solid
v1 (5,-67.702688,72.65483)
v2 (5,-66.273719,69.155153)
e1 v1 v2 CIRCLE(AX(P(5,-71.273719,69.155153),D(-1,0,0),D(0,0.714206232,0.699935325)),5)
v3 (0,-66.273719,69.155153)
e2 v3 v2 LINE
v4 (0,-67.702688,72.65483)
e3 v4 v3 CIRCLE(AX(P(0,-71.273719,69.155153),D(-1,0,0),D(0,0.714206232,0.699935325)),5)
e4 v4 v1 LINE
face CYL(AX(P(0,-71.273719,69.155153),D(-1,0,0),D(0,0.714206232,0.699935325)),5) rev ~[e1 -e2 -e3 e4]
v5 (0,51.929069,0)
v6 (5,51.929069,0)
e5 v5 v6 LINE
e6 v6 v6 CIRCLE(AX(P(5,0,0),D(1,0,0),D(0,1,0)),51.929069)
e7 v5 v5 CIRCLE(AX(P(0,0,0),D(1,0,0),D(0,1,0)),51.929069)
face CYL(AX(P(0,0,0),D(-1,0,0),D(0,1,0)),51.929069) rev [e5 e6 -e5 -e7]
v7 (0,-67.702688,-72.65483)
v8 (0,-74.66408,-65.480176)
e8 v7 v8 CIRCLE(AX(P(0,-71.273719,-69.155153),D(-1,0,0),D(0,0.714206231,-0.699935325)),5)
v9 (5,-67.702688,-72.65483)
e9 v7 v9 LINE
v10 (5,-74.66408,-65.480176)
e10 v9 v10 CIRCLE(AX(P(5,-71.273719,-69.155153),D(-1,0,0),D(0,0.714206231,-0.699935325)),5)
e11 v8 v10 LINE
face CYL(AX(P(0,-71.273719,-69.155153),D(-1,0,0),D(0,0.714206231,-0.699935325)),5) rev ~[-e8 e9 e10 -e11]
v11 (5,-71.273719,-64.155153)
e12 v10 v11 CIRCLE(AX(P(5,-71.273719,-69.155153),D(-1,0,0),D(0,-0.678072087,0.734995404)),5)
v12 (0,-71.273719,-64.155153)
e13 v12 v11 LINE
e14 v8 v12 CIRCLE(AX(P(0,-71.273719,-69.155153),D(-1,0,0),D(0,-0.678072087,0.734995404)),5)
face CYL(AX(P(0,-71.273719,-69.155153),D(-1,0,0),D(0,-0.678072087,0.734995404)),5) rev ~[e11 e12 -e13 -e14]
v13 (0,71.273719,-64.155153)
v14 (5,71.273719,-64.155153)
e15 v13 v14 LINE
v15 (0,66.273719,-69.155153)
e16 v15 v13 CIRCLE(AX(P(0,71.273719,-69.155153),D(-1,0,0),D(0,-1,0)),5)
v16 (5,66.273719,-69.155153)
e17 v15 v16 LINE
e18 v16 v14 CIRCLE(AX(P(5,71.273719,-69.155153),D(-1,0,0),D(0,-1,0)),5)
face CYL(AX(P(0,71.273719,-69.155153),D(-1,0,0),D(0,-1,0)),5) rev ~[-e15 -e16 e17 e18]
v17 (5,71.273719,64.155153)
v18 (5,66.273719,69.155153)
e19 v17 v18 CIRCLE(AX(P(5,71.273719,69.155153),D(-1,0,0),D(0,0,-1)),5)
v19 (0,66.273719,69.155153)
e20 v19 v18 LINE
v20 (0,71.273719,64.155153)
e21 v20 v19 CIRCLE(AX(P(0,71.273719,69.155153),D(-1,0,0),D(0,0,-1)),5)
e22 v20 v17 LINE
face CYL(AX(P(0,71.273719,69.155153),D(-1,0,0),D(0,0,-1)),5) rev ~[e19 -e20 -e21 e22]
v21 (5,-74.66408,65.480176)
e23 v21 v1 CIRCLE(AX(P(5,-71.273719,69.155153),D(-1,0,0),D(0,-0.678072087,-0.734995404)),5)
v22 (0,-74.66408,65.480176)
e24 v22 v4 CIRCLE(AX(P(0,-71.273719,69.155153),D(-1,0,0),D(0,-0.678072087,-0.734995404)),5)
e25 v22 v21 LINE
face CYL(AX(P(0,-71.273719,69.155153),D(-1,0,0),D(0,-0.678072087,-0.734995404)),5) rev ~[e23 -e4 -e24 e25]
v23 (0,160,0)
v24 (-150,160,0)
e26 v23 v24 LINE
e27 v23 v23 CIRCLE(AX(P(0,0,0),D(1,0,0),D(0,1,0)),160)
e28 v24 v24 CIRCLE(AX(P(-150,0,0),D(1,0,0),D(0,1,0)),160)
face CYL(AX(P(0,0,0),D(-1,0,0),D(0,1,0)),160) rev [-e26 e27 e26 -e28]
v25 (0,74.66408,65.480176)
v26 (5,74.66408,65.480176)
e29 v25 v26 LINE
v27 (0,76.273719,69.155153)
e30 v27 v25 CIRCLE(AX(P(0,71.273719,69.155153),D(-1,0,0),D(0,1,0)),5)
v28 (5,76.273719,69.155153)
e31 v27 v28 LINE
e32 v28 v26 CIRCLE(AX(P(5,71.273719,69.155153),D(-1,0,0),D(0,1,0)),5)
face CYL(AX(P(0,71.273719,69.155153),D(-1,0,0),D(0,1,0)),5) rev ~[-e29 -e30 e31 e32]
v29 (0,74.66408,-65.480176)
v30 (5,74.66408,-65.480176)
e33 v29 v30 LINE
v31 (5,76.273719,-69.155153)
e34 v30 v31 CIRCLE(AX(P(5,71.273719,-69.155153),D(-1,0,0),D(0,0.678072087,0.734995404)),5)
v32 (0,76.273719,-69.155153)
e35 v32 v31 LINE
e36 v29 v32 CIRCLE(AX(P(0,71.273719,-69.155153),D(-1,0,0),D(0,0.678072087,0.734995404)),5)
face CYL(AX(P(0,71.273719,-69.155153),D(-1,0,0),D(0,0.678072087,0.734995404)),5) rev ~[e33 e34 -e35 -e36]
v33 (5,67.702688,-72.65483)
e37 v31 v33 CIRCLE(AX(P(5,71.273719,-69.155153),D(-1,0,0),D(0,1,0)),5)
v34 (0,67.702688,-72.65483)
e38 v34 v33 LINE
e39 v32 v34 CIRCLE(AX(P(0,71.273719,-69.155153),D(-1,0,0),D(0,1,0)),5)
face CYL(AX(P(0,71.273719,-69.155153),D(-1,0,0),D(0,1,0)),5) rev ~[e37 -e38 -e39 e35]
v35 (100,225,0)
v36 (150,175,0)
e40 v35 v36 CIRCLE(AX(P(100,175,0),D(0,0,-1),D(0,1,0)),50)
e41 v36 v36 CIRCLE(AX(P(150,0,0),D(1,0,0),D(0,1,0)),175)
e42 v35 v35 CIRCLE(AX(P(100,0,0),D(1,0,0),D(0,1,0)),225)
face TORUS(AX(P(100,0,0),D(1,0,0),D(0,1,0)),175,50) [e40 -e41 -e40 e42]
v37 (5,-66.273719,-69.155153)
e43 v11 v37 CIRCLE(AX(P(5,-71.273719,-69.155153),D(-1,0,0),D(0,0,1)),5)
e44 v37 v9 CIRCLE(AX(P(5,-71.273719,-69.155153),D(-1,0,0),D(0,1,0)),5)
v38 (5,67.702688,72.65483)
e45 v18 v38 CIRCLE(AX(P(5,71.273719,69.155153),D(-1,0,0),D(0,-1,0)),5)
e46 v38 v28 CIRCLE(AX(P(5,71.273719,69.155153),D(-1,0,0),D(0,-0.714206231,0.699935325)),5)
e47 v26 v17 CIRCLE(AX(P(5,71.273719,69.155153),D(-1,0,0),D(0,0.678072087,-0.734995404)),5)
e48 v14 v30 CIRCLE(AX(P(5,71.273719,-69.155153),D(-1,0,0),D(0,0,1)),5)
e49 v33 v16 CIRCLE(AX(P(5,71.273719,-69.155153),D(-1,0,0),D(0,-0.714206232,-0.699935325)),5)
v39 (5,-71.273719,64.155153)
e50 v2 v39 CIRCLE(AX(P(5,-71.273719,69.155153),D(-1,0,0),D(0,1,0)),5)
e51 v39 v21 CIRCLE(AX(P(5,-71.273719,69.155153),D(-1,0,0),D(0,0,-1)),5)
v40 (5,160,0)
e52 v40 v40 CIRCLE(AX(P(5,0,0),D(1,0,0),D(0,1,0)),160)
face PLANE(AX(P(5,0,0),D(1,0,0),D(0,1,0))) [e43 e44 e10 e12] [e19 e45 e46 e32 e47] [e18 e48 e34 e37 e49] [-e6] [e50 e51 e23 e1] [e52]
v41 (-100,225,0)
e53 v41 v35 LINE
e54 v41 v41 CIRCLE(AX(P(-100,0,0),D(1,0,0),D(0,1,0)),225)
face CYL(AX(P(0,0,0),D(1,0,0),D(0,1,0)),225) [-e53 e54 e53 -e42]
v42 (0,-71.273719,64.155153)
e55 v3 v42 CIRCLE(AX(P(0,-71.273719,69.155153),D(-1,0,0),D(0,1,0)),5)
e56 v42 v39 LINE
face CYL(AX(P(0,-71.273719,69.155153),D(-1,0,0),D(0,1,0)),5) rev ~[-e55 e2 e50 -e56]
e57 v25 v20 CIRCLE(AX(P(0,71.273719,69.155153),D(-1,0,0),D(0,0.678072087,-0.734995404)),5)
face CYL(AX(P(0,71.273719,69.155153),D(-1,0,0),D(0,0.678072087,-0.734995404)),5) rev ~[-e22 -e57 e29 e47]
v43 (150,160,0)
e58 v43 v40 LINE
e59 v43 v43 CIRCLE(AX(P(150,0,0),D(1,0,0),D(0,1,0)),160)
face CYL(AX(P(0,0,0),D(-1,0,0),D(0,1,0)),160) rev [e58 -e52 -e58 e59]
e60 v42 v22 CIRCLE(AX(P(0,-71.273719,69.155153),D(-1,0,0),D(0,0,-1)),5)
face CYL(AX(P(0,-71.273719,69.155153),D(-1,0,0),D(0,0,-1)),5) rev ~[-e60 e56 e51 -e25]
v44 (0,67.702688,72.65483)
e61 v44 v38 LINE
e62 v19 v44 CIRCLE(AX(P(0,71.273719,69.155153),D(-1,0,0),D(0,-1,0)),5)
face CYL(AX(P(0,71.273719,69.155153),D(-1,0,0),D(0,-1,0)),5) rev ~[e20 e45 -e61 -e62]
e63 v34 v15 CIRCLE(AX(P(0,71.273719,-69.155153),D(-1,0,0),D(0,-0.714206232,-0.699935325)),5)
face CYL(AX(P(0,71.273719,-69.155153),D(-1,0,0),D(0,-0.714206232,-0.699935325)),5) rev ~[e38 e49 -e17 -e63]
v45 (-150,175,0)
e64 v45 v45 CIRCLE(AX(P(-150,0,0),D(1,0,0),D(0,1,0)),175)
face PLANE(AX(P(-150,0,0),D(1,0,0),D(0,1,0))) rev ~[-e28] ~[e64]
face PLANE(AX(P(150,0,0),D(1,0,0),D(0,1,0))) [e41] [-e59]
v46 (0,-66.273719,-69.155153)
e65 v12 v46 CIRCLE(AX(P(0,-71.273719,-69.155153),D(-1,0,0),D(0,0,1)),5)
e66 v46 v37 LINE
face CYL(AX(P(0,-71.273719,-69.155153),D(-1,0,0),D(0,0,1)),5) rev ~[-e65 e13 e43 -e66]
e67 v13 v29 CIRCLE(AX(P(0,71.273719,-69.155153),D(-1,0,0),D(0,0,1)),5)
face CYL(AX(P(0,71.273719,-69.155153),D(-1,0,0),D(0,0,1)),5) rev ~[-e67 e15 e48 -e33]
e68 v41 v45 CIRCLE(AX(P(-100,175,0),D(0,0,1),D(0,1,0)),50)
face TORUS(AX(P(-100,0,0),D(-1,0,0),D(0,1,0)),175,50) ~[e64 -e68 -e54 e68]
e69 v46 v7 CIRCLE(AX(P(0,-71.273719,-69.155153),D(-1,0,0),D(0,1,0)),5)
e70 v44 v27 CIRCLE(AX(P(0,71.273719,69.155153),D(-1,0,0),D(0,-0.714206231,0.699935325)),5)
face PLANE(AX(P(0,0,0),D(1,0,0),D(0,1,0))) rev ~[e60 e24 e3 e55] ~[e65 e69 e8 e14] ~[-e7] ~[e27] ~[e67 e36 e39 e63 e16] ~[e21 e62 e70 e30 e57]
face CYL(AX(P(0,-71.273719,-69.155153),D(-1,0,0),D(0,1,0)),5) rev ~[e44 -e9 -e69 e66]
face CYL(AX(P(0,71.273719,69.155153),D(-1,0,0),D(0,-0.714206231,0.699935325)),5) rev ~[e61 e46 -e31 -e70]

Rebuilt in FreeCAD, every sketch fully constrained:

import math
import FreeCAD as App
import Part
import Sketcher
from FreeCAD import Vector
Q = App.Units.Quantity


def edges_at(feature, points):
    """Names of the edges that pass closest to the given points."""
    edges = feature.Shape.Edges
    near = lambda p: min(range(len(edges)), key=lambda i: edges[i].distToShape(Part.Vertex(*p))[0])
    return sorted({f"Edge{near(p) + 1}" for p in points})

doc = App.newDocument("Part")
body = doc.addObject("PartDesign::Body", "Body")

sketch1 = doc.addObject("Sketcher::SketchObject", "Sketch")
body.addObject(sketch1)
sketch1.AttachmentSupport = (doc.YZ_Plane, [""])
sketch1.MapMode = "FlatFace"
sketch1.addGeometry(Part.Circle(Vector(0, 0, 0), Vector(0, 0, 1), 225), False)
sketch1.addGeometry(Part.Circle(Vector(0, 0, 0), Vector(0, 0, 1), 160), False)
sketch1.addConstraint(Sketcher.Constraint("Coincident", 0, 3, -1, 1))
sketch1.addConstraint(Sketcher.Constraint("Coincident", 1, 3, -1, 1))
sketch1.addConstraint(Sketcher.Constraint("Diameter", 0, Q("450 mm")))
sketch1.addConstraint(Sketcher.Constraint("Diameter", 1, Q("320 mm")))
pad1 = doc.addObject("PartDesign::Pad", "Pad")
body.addObject(pad1)
pad1.Profile = sketch1
pad1.Length = 300
pad1.Midplane = True
doc.recompute()

fillet = doc.addObject("PartDesign::Fillet", "Fillet")
body.addObject(fillet)
fillet.Base = (pad1, edges_at(pad1, [(150, -225, 0), (-150, -225, 0), (0, 225, 0)]))
fillet.Radius = 50

sketch2 = doc.addObject("Sketcher::SketchObject", "Sketch001")
body.addObject(sketch2)
sketch2.AttachmentSupport = (doc.YZ_Plane, [""])
sketch2.MapMode = "FlatFace"
sketch2.addGeometry(Part.Circle(Vector(0, 0, 0), Vector(0, 0, 1), 160), False)
sketch2.addGeometry(Part.ArcOfCircle(Part.Circle(Vector(-71.3, -69.2, 0), Vector(0, 0, 1), 5), math.radians(-44), math.radians(0)), False)
sketch2.addGeometry(Part.ArcOfCircle(Part.Circle(Vector(-71.3, -69.2, 0), Vector(0, 0, 1), 5), math.radians(133), math.radians(316)), False)
sketch2.addGeometry(Part.ArcOfCircle(Part.Circle(Vector(-71.3, -69.2, 0), Vector(0, 0, 1), 5), math.radians(90), math.radians(133)), False)
sketch2.addGeometry(Part.ArcOfCircle(Part.Circle(Vector(-71.3, -69.2, 0), Vector(0, 0, 1), 5), math.radians(0), math.radians(90)), False)
sketch2.addGeometry(Part.Circle(Vector(0, 0, 0), Vector(0, 0, 1), 51.9), False)
sketch2.addGeometry(Part.ArcOfCircle(Part.Circle(Vector(-71.3, 69.2, 0), Vector(0, 0, 1), 5), math.radians(-133), math.radians(-90)), False)
sketch2.addGeometry(Part.ArcOfCircle(Part.Circle(Vector(-71.3, 69.2, 0), Vector(0, 0, 1), 5), math.radians(44), math.radians(227)), False)
sketch2.addGeometry(Part.ArcOfCircle(Part.Circle(Vector(-71.3, 69.2, 0), Vector(0, 0, 1), 5), math.radians(0), math.radians(44)), False)
sketch2.addGeometry(Part.ArcOfCircle(Part.Circle(Vector(-71.3, 69.2, 0), Vector(0, 0, 1), 5), math.radians(-90), math.radians(0)), False)
sketch2.addGeometry(Part.ArcOfCircle(Part.Circle(Vector(71.3, 69.2, 0), Vector(0, 0, 1), 5), math.radians(-47), math.radians(0)), False)
sketch2.addGeometry(Part.ArcOfCircle(Part.Circle(Vector(71.3, 69.2, 0), Vector(0, 0, 1), 5), math.radians(-90), math.radians(-47)), False)
sketch2.addGeometry(Part.ArcOfCircle(Part.Circle(Vector(71.3, 69.2, 0), Vector(0, 0, 1), 5), math.radians(180), math.radians(270)), False)
sketch2.addGeometry(Part.ArcOfCircle(Part.Circle(Vector(71.3, 69.2, 0), Vector(0, 0, 1), 5), math.radians(136), math.radians(180)), False)
sketch2.addGeometry(Part.ArcOfCircle(Part.Circle(Vector(71.3, 69.2, 0), Vector(0, 0, 1), 5), math.radians(0), math.radians(136)), False)
sketch2.addGeometry(Part.ArcOfCircle(Part.Circle(Vector(71.3, -69.2, 0), Vector(0, 0, 1), 5), math.radians(0), math.radians(47)), False)
sketch2.addGeometry(Part.ArcOfCircle(Part.Circle(Vector(71.3, -69.2, 0), Vector(0, 0, 1), 5), math.radians(-136), math.radians(0)), False)
sketch2.addGeometry(Part.ArcOfCircle(Part.Circle(Vector(71.3, -69.2, 0), Vector(0, 0, 1), 5), math.radians(180), math.radians(224)), False)
sketch2.addGeometry(Part.ArcOfCircle(Part.Circle(Vector(71.3, -69.2, 0), Vector(0, 0, 1), 5), math.radians(90), math.radians(180)), False)
sketch2.addGeometry(Part.ArcOfCircle(Part.Circle(Vector(71.3, -69.2, 0), Vector(0, 0, 1), 5), math.radians(47), math.radians(90)), False)
sketch2.addConstraint(Sketcher.Constraint("Tangent", 1, 1, 2, 2))
sketch2.addConstraint(Sketcher.Constraint("Tangent", 2, 1, 3, 2))
sketch2.addConstraint(Sketcher.Constraint("Tangent", 3, 1, 4, 2))
sketch2.addConstraint(Sketcher.Constraint("Tangent", 4, 1, 1, 2))
sketch2.addConstraint(Sketcher.Constraint("Tangent", 6, 1, 7, 2))
sketch2.addConstraint(Sketcher.Constraint("Tangent", 7, 1, 8, 2))
sketch2.addConstraint(Sketcher.Constraint("Tangent", 8, 1, 9, 2))
sketch2.addConstraint(Sketcher.Constraint("Tangent", 9, 1, 6, 2))
sketch2.addConstraint(Sketcher.Constraint("Tangent", 10, 1, 11, 2))
sketch2.addConstraint(Sketcher.Constraint("Tangent", 11, 1, 12, 2))
sketch2.addConstraint(Sketcher.Constraint("Tangent", 12, 1, 13, 2))
sketch2.addConstraint(Sketcher.Constraint("Tangent", 13, 1, 14, 2))
sketch2.addConstraint(Sketcher.Constraint("Tangent", 14, 1, 10, 2))
sketch2.addConstraint(Sketcher.Constraint("Tangent", 15, 1, 16, 2))
sketch2.addConstraint(Sketcher.Constraint("Tangent", 16, 1, 17, 2))
sketch2.addConstraint(Sketcher.Constraint("Tangent", 17, 1, 18, 2))
sketch2.addConstraint(Sketcher.Constraint("Tangent", 18, 1, 19, 2))
sketch2.addConstraint(Sketcher.Constraint("Tangent", 19, 1, 15, 2))
sketch2.addConstraint(Sketcher.Constraint("Coincident", 0, 3, -1, 1))
sketch2.addConstraint(Sketcher.Constraint("Coincident", 5, 3, -1, 1))
sketch2.addConstraint(Sketcher.Constraint("Coincident", 12, 3, 10, 3))
sketch2.addConstraint(Sketcher.Constraint("Coincident", 17, 3, 15, 3))
sketch2.addConstraint(Sketcher.Constraint("Equal", 1, 2))
sketch2.addConstraint(Sketcher.Constraint("Equal", 4, 6))
sketch2.addConstraint(Sketcher.Constraint("Equal", 6, 7))
sketch2.addConstraint(Sketcher.Constraint("Equal", 9, 10))
sketch2.addConstraint(Sketcher.Constraint("Equal", 14, 15))
sketch2.addConstraint(Sketcher.Constraint("Symmetric", 1, 3, 10, 3, -1, 1))
sketch2.addConstraint(Sketcher.Constraint("Symmetric", 6, 3, 15, 3, -1, 1))
sketch2.addConstraint(Sketcher.Constraint("Symmetric", 6, 3, 10, 3, -2))
sketch2.addConstraint(Sketcher.Constraint("Horizontal", 19, 3, 4, 1))
sketch2.addConstraint(Sketcher.Constraint("Horizontal", 14, 3, 8, 1))
sketch2.addConstraint(Sketcher.Constraint("Horizontal", 6, 1, 10, 1))
sketch2.addConstraint(Sketcher.Constraint("Horizontal", 8, 1, 12, 1))
sketch2.addConstraint(Sketcher.Constraint("Horizontal", 7, 1, 13, 1))
sketch2.addConstraint(Sketcher.Constraint("Horizontal", 12, 1, 14, 1))
sketch2.addConstraint(Sketcher.Constraint("Horizontal", 4, 1, 15, 1))
sketch2.addConstraint(Sketcher.Constraint("Horizontal", 1, 1, 16, 1))
sketch2.addConstraint(Sketcher.Constraint("Horizontal", 15, 1, 17, 1))
sketch2.addConstraint(Sketcher.Constraint("Horizontal", 2, 1, 19, 1))
sketch2.addConstraint(Sketcher.Constraint("Vertical", 9, 3, 3, 1))
sketch2.addConstraint(Sketcher.Constraint("Vertical", 2, 1, 6, 1))
sketch2.addConstraint(Sketcher.Constraint("Vertical", 1, 1, 7, 1))
sketch2.addConstraint(Sketcher.Constraint("Vertical", 3, 1, 9, 1))
sketch2.addConstraint(Sketcher.Constraint("Vertical", 19, 3, 11, 1))
sketch2.addConstraint(Sketcher.Constraint("Vertical", 11, 1, 18, 1))
sketch2.addConstraint(Sketcher.Constraint("Diameter", 0, Q("320 mm")))
sketch2.addConstraint(Sketcher.Constraint("Radius", 1, Q("5 mm")))
sketch2.addConstraint(Sketcher.Constraint("Diameter", 5, Q("103.858137 mm")))
sketch2.addConstraint(Sketcher.Constraint("DistanceX", 1, 3, -1, 1, Q("71.273719 mm")))
sketch2.addConstraint(Sketcher.Constraint("DistanceX", 1, 1, -1, 1, Q("67.702688 mm")))
sketch2.addConstraint(Sketcher.Constraint("DistanceY", 1, 1, -1, 1, Q("72.65483 mm")))
sketch2.addConstraint(Sketcher.Constraint("DistanceX", 2, 1, -1, 1, Q("74.66408 mm")))
pad2 = doc.addObject("PartDesign::Pad", "Pad001")
body.addObject(pad2)
pad2.Profile = sketch2
pad2.Length = 5

doc.recompute()
